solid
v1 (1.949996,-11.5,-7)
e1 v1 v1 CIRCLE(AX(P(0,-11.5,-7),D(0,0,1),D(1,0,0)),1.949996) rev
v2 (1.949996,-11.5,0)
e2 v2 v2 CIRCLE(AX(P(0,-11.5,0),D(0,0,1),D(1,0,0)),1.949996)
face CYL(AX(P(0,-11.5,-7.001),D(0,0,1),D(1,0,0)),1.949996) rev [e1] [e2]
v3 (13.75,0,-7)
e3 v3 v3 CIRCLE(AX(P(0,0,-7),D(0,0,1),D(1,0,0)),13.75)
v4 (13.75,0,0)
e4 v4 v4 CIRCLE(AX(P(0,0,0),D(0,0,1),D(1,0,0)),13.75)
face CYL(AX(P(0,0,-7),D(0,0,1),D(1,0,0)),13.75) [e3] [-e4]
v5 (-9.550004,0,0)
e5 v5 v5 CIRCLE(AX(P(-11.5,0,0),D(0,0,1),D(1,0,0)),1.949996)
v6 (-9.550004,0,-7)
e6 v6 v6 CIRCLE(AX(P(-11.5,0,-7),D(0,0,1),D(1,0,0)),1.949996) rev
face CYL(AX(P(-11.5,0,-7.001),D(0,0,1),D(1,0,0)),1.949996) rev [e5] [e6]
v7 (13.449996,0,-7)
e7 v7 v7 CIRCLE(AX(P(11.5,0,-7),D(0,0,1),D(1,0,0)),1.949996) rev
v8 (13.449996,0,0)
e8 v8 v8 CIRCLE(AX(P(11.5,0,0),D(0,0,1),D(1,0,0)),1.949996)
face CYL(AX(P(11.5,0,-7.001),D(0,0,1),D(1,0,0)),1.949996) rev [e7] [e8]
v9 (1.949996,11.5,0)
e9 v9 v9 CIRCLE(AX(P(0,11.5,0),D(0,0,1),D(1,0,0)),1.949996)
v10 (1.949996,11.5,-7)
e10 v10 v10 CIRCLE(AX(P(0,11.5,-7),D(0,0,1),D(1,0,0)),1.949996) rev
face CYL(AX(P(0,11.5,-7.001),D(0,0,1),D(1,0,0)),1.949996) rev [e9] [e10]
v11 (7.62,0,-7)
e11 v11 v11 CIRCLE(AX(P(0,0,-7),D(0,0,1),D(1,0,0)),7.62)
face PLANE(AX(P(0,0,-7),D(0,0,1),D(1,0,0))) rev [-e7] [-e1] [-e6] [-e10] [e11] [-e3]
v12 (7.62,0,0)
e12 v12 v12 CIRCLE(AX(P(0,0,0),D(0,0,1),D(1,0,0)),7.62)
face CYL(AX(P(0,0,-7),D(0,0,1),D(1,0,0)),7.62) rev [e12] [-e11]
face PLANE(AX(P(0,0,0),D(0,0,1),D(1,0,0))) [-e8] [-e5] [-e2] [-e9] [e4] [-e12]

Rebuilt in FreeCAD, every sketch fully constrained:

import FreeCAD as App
import Part
import Sketcher

doc = App.newDocument("Part")
body = doc.addObject("PartDesign::Body", "Body")

sketch1 = body.newObject("Sketcher::SketchObject", "Sketch")
sketch1.AttachmentSupport = (doc.getObject("XY_Plane"), [""])
sketch1.MapMode = "FlatFace"
sketch1.addGeometry([
    Part.Circle(App.Vector(0, 0, 0), App.Vector(0, 0, 1), 14),
    Part.Circle(App.Vector(0, 0, 0), App.Vector(0, 0, 1), 8),
], False)
sketch1.addConstraint([
    Sketcher.Constraint("Coincident", 0, 3, -1, 1),
    Sketcher.Constraint("Coincident", 1, 3, -1, 1),
    Sketcher.Constraint("Diameter", 0, 27.5),
    Sketcher.Constraint("Diameter", 1, 15.24),
])
pad1 = body.newObject("PartDesign::Pad", "Pad")
pad1.Profile = sketch1
pad1.Length = 7
pad1.Reversed = True

sketch2 = body.newObject("Sketcher::SketchObject", "Sketch001")
sketch2.AttachmentSupport = (doc.getObject("XY_Plane"), [""])
sketch2.MapMode = "FlatFace"
sketch2.addGeometry(Part.Circle(App.Vector(-11.5, 0, 0), App.Vector(0, 0, 1), 1.9), False)
sketch2.addConstraint([
    Sketcher.Constraint("PointOnObject", 0, 3, -1),
    Sketcher.Constraint("DistanceX", 0, 3, -1, 1, 11.5),
    Sketcher.Constraint("Diameter", 0, 3.899992),
])
pocket1 = body.newObject("PartDesign::Pocket", "Pocket")
pocket1.Profile = sketch2
pocket1.Type = "UpToFirst"

sketch3 = body.newObject("Sketcher::SketchObject", "Sketch002")
sketch3.AttachmentSupport = (doc.getObject("XY_Plane"), [""])
sketch3.MapMode = "FlatFace"
sketch3.addGeometry(Part.Circle(App.Vector(0, 11.5, 0), App.Vector(0, 0, 1), 1.9), False)
sketch3.addConstraint([
    Sketcher.Constraint("PointOnObject", 0, 3, -2),
    Sketcher.Constraint("DistanceY", -1, 1, 0, 3, 11.5),
    Sketcher.Constraint("Diameter", 0, 3.899992),
])
pocket2 = body.newObject("PartDesign::Pocket", "Pocket001")
pocket2.Profile = sketch3
pocket2.Type = "UpToFirst"

sketch4 = body.newObject("Sketcher::SketchObject", "Sketch003")
sketch4.AttachmentSupport = (doc.getObject("XY_Plane"), [""])
sketch4.MapMode = "FlatFace"
sketch4.addGeometry(Part.Circle(App.Vector(11.5, 0, 0), App.Vector(0, 0, 1), 1.9), False)
sketch4.addConstraint([
    Sketcher.Constraint("PointOnObject", 0, 3, -1),
    Sketcher.Constraint("DistanceX", -1, 1, 0, 3, 11.5),
    Sketcher.Constraint("Diameter", 0, 3.899992),
])
pocket3 = body.newObject("PartDesign::Pocket", "Pocket002")
pocket3.Profile = sketch4
pocket3.Type = "UpToFirst"

sketch5 = body.newObject("Sketcher::SketchObject", "Sketch004")
sketch5.AttachmentSupport = (doc.getObject("XY_Plane"), [""])
sketch5.MapMode = "FlatFace"
sketch5.addGeometry(Part.Circle(App.Vector(0, -11.5, 0), App.Vector(0, 0, 1), 1.9), False)
sketch5.addConstraint([
    Sketcher.Constraint("PointOnObject", 0, 3, -2),
    Sketcher.Constraint("DistanceY", 0, 3, -1, 1, 11.5),
    Sketcher.Constraint("Diameter", 0, 3.899992),
])
pocket4 = body.newObject("PartDesign::Pocket", "Pocket003")
pocket4.Profile = sketch5
pocket4.Type = "UpToFirst"

doc.recompute()
